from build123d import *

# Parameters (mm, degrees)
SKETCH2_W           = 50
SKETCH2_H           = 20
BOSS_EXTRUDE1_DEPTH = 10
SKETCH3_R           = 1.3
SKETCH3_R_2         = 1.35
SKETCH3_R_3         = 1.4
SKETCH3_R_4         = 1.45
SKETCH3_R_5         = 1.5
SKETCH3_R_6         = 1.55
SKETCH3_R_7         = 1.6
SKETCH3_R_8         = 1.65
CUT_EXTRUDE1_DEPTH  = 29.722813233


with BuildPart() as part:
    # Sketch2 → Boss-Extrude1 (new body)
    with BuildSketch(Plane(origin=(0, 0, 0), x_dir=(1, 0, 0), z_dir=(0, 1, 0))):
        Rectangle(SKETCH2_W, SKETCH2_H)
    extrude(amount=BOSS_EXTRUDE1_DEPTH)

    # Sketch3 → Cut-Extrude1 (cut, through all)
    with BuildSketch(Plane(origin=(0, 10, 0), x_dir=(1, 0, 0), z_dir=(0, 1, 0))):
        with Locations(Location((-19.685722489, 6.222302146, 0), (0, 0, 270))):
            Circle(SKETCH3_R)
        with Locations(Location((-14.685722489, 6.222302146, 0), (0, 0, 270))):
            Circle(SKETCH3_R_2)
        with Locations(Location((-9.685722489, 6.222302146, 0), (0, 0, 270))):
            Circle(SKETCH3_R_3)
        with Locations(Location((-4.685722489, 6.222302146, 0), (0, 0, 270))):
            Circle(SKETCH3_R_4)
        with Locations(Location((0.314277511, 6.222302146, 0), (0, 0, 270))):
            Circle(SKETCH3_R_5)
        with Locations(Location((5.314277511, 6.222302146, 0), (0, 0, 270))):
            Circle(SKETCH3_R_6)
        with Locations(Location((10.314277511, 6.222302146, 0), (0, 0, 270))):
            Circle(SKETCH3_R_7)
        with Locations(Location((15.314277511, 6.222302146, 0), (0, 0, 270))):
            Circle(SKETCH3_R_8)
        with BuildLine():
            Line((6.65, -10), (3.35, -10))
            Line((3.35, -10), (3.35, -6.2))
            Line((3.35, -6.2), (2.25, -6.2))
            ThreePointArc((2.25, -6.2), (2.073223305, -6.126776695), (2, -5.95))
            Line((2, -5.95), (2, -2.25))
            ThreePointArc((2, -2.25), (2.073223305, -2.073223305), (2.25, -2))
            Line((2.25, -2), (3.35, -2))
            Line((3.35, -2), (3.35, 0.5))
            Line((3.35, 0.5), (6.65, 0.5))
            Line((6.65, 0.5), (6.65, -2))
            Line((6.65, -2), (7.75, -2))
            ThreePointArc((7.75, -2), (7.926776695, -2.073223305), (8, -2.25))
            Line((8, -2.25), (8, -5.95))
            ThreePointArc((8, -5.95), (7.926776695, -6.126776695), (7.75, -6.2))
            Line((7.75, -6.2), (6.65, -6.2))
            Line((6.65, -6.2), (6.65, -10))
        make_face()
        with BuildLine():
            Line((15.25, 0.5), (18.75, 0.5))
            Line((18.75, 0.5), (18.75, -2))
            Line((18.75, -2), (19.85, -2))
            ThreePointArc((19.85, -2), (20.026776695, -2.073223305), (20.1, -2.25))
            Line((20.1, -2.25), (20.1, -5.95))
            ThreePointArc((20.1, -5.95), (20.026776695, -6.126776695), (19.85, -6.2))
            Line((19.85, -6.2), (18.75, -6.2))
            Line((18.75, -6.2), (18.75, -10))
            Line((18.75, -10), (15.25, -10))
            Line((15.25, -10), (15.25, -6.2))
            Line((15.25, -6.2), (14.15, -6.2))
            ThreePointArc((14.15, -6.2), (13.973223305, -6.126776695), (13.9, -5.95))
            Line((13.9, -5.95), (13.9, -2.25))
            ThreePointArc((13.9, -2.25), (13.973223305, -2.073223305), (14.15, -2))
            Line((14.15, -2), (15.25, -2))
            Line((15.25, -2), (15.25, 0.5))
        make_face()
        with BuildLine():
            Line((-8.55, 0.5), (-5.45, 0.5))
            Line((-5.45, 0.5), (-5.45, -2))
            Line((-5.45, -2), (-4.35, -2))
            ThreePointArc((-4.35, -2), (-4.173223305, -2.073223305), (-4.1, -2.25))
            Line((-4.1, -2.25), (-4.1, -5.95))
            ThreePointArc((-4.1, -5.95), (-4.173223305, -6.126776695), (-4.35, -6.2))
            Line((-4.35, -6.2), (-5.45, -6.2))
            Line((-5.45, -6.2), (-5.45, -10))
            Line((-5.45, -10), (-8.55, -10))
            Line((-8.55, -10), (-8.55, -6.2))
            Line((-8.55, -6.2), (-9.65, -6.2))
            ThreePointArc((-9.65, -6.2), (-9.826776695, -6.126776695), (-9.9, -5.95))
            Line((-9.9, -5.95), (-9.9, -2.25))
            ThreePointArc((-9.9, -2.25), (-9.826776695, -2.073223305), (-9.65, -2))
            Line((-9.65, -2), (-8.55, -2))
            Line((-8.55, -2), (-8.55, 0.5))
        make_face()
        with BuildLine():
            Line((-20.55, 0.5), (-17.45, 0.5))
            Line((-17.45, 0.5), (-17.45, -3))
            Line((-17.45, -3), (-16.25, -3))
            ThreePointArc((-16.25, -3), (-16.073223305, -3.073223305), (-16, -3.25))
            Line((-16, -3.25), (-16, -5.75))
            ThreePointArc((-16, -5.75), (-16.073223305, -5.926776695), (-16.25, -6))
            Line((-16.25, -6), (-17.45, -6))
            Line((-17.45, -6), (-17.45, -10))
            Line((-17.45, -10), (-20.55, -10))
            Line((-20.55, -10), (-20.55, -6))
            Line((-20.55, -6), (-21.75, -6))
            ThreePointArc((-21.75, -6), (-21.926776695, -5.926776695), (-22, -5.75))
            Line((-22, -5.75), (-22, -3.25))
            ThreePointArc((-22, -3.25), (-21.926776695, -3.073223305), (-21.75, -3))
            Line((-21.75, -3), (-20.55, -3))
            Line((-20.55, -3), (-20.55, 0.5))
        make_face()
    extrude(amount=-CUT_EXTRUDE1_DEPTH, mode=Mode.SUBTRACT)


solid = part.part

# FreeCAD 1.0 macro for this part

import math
import FreeCAD as App
import Part
import Sketcher
Q = App.Units.Quantity


def add_polygon(sketch, points):
    """Adds a closed chain of lines whose ends are joined by coincident constraints."""
    first, n = sketch.GeometryCount, len(points)
    for a, b in zip(points, points[1:] + points[:1]):
        sketch.addGeometry(Part.LineSegment(App.Vector(*a, 0), App.Vector(*b, 0)), False)
    for i in range(n):
        sketch.addConstraint(Sketcher.Constraint("Coincident", first + i, 2, first + (i + 1) % n, 1))

doc = App.newDocument("Part")
body = doc.addObject("PartDesign::Body", "Body")

# Sketch on XZ plane
sketch1 = body.newObject("Sketcher::SketchObject", "Sketch")
sketch1.AttachmentSupport = (doc.getObject("XZ_Plane"), [""])
sketch1.MapMode = "FlatFace"
add_polygon(sketch1, [(-25, -10), (-25, 10), (25, 10), (25, -10)])  # lines 0-3
sketch1.addConstraint(Sketcher.Constraint("Vertical", 0))
sketch1.addConstraint(Sketcher.Constraint("Horizontal", 1))
sketch1.addConstraint(Sketcher.Constraint("Vertical", 2))
sketch1.addConstraint(Sketcher.Constraint("Horizontal", 3))
sketch1.addConstraint(Sketcher.Constraint("Symmetric", 0, 2, 2, 2, -1, 1))
sketch1.addConstraint(Sketcher.Constraint("DistanceX", 1, 1, 1, 2, Q("50 mm")))
sketch1.addConstraint(Sketcher.Constraint("DistanceY", 0, 1, 0, 2, Q("20 mm")))
pad1 = body.newObject("PartDesign::Pad", "Pad")
pad1.Profile = sketch1
pad1.Length = 10
pad1.Reversed = True

# Sketch on XZ plane
sketch2 = body.newObject("Sketcher::SketchObject", "Sketch001")
sketch2.AttachmentSupport = (doc.getObject("XZ_Plane"), [""])
sketch2.MapMode = "FlatFace"
sketch2.AttachmentOffset = App.Placement(App.Vector(0, 0, -10), App.Rotation())
sketch2.addGeometry(Part.Circle(App.Vector(-19.69, -6.22, 0), App.Vector(0, 0, 1), 1.3), False)
sketch2.addGeometry(Part.Circle(App.Vector(-14.69, -6.22, 0), App.Vector(0, 0, 1), 1.35), False)
sketch2.addGeometry(Part.Circle(App.Vector(-9.69, -6.22, 0), App.Vector(0, 0, 1), 1.4), False)
sketch2.addGeometry(Part.Circle(App.Vector(-4.69, -6.22, 0), App.Vector(0, 0, 1), 1.45), False)
sketch2.addGeometry(Part.Circle(App.Vector(0.31, -6.22, 0), App.Vector(0, 0, 1), 1.5), False)
sketch2.addGeometry(Part.Circle(App.Vector(5.31, -6.22, 0), App.Vector(0, 0, 1), 1.55), False)
sketch2.addGeometry(Part.Circle(App.Vector(10.31, -6.22, 0), App.Vector(0, 0, 1), 1.6), False)
sketch2.addGeometry(Part.Circle(App.Vector(15.31, -6.22, 0), App.Vector(0, 0, 1), 1.65), False)
sketch2.addGeometry(Part.LineSegment(App.Vector(3.35, 10, 0), App.Vector(6.65, 10, 0)), False)
sketch2.addGeometry(Part.LineSegment(App.Vector(6.65, 10, 0), App.Vector(6.65, 6.2, 0)), False)
sketch2.addGeometry(Part.LineSegment(App.Vector(6.65, 6.2, 0), App.Vector(7.75, 6.2, 0)), False)
sketch2.addGeometry(Part.ArcOfCircle(Part.Circle(App.Vector(7.75, 5.95, 0), App.Vector(0, 0, 1), 0.25), math.radians(0), math.radians(90)), False)
sketch2.addGeometry(Part.LineSegment(App.Vector(8, 5.95, 0), App.Vector(8, 2.25, 0)), False)
sketch2.addGeometry(Part.ArcOfCircle(Part.Circle(App.Vector(7.75, 2.25, 0), App.Vector(0, 0, 1), 0.25), math.radians(-90), math.radians(0)), False)
sketch2.addGeometry(Part.LineSegment(App.Vector(7.75, 2, 0), App.Vector(6.65, 2, 0)), False)
sketch2.addGeometry(Part.LineSegment(App.Vector(6.65, 2, 0), App.Vector(6.65, -0.5, 0)), False)
sketch2.addGeometry(Part.LineSegment(App.Vector(6.65, -0.5, 0), App.Vector(3.35, -0.5, 0)), False)
sketch2.addGeometry(Part.LineSegment(App.Vector(3.35, -0.5, 0), App.Vector(3.35, 2, 0)), False)
sketch2.addGeometry(Part.LineSegment(App.Vector(3.35, 2, 0), App.Vector(2.25, 2, 0)), False)
sketch2.addGeometry(Part.ArcOfCircle(Part.Circle(App.Vector(2.25, 2.25, 0), App.Vector(0, 0, 1), 0.25), math.radians(-180), math.radians(-90)), False)
sketch2.addGeometry(Part.LineSegment(App.Vector(2, 2.25, 0), App.Vector(2, 5.95, 0)), False)
sketch2.addGeometry(Part.ArcOfCircle(Part.Circle(App.Vector(2.25, 5.95, 0), App.Vector(0, 0, 1), 0.25), math.radians(90), math.radians(180)), False)
sketch2.addGeometry(Part.LineSegment(App.Vector(2.25, 6.2, 0), App.Vector(3.35, 6.2, 0)), False)
sketch2.addGeometry(Part.LineSegment(App.Vector(3.35, 6.2, 0), App.Vector(3.35, 10, 0)), False)
sketch2.addGeometry(Part.LineSegment(App.Vector(18.75, -0.5, 0), App.Vector(15.25, -0.5, 0)), False)
sketch2.addGeometry(Part.LineSegment(App.Vector(15.25, -0.5, 0), App.Vector(15.25, 2, 0)), False)
sketch2.addGeometry(Part.LineSegment(App.Vector(15.25, 2, 0), App.Vector(14.15, 2, 0)), False)
sketch2.addGeometry(Part.ArcOfCircle(Part.Circle(App.Vector(14.15, 2.25, 0), App.Vector(0, 0, 1), 0.25), math.radians(-180), math.radians(-90)), False)
sketch2.addGeometry(Part.LineSegment(App.Vector(13.9, 2.25, 0), App.Vector(13.9, 5.95, 0)), False)
sketch2.addGeometry(Part.ArcOfCircle(Part.Circle(App.Vector(14.15, 5.95, 0), App.Vector(0, 0, 1), 0.25), math.radians(90), math.radians(180)), False)
sketch2.addGeometry(Part.LineSegment(App.Vector(14.15, 6.2, 0), App.Vector(15.25, 6.2, 0)), False)
sketch2.addGeometry(Part.LineSegment(App.Vector(15.25, 6.2, 0), App.Vector(15.25, 10, 0)), False)
sketch2.addGeometry(Part.LineSegment(App.Vector(15.25, 10, 0), App.Vector(18.75, 10, 0)), False)
sketch2.addGeometry(Part.LineSegment(App.Vector(18.75, 10, 0), App.Vector(18.75, 6.2, 0)), False)
sketch2.addGeometry(Part.LineSegment(App.Vector(18.75, 6.2, 0), App.Vector(19.85, 6.2, 0)), False)
sketch2.addGeometry(Part.ArcOfCircle(Part.Circle(App.Vector(19.85, 5.95, 0), App.Vector(0, 0, 1), 0.25), math.radians(0), math.radians(90)), False)
sketch2.addGeometry(Part.LineSegment(App.Vector(20.1, 5.95, 0), App.Vector(20.1, 2.25, 0)), False)
sketch2.addGeometry(Part.ArcOfCircle(Part.Circle(App.Vector(19.85, 2.25, 0), App.Vector(0, 0, 1), 0.25), math.radians(-90), math.radians(0)), False)
sketch2.addGeometry(Part.LineSegment(App.Vector(19.85, 2, 0), App.Vector(18.75, 2, 0)), False)
sketch2.addGeometry(Part.LineSegment(App.Vector(18.75, 2, 0), App.Vector(18.75, -0.5, 0)), False)
sketch2.addGeometry(Part.LineSegment(App.Vector(-5.45, -0.5, 0), App.Vector(-8.55, -0.5, 0)), False)
sketch2.addGeometry(Part.LineSegment(App.Vector(-8.55, -0.5, 0), App.Vector(-8.55, 2, 0)), False)
sketch2.addGeometry(Part.LineSegment(App.Vector(-8.55, 2, 0), App.Vector(-9.65, 2, 0)), False)
sketch2.addGeometry(Part.ArcOfCircle(Part.Circle(App.Vector(-9.65, 2.25, 0), App.Vector(0, 0, 1), 0.25), math.radians(-180), math.radians(-90)), False)
sketch2.addGeometry(Part.LineSegment(App.Vector(-9.9, 2.25, 0), App.Vector(-9.9, 5.95, 0)), False)
sketch2.addGeometry(Part.ArcOfCircle(Part.Circle(App.Vector(-9.65, 5.95, 0), App.Vector(0, 0, 1), 0.25), math.radians(90), math.radians(180)), False)
sketch2.addGeometry(Part.LineSegment(App.Vector(-9.65, 6.2, 0), App.Vector(-8.55, 6.2, 0)), False)
sketch2.addGeometry(Part.LineSegment(App.Vector(-8.55, 6.2, 0), App.Vector(-8.55, 10, 0)), False)
sketch2.addGeometry(Part.LineSegment(App.Vector(-8.55, 10, 0), App.Vector(-5.45, 10, 0)), False)
sketch2.addGeometry(Part.LineSegment(App.Vector(-5.45, 10, 0), App.Vector(-5.45, 6.2, 0)), False)
sketch2.addGeometry(Part.LineSegment(App.Vector(-5.45, 6.2, 0), App.Vector(-4.35, 6.2, 0)), False)
sketch2.addGeometry(Part.ArcOfCircle(Part.Circle(App.Vector(-4.35, 5.95, 0), App.Vector(0, 0, 1), 0.25), math.radians(0), math.radians(90)), False)
sketch2.addGeometry(Part.LineSegment(App.Vector(-4.1, 5.95, 0), App.Vector(-4.1, 2.25, 0)), False)
sketch2.addGeometry(Part.ArcOfCircle(Part.Circle(App.Vector(-4.35, 2.25, 0), App.Vector(0, 0, 1), 0.25), math.radians(-90), math.radians(0)), False)
sketch2.addGeometry(Part.LineSegment(App.Vector(-4.35, 2, 0), App.Vector(-5.45, 2, 0)), False)
sketch2.addGeometry(Part.LineSegment(App.Vector(-5.45, 2, 0), App.Vector(-5.45, -0.5, 0)), False)
sketch2.addGeometry(Part.LineSegment(App.Vector(-17.45, -0.5, 0), App.Vector(-20.55, -0.5, 0)), False)
sketch2.addGeometry(Part.LineSegment(App.Vector(-20.55, -0.5, 0), App.Vector(-20.55, 3, 0)), False)
sketch2.addGeometry(Part.LineSegment(App.Vector(-20.55, 3, 0), App.Vector(-21.75, 3, 0)), False)
sketch2.addGeometry(Part.ArcOfCircle(Part.Circle(App.Vector(-21.75, 3.25, 0), App.Vector(0, 0, 1), 0.25), math.radians(-180), math.radians(-90)), False)
sketch2.addGeometry(Part.LineSegment(App.Vector(-22, 3.25, 0), App.Vector(-22, 5.75, 0)), False)
sketch2.addGeometry(Part.ArcOfCircle(Part.Circle(App.Vector(-21.75, 5.75, 0), App.Vector(0, 0, 1), 0.25), math.radians(90), math.radians(180)), False)
sketch2.addGeometry(Part.LineSegment(App.Vector(-21.75, 6, 0), App.Vector(-20.55, 6, 0)), False)
sketch2.addGeometry(Part.LineSegment(App.Vector(-20.55, 6, 0), App.Vector(-20.55, 10, 0)), False)
sketch2.addGeometry(Part.LineSegment(App.Vector(-20.55, 10, 0), App.Vector(-17.45, 10, 0)), False)
sketch2.addGeometry(Part.LineSegment(App.Vector(-17.45, 10, 0), App.Vector(-17.45, 6, 0)), False)
sketch2.addGeometry(Part.LineSegment(App.Vector(-17.45, 6, 0), App.Vector(-16.25, 6, 0)), False)
sketch2.addGeometry(Part.ArcOfCircle(Part.Circle(App.Vector(-16.25, 5.75, 0), App.Vector(0, 0, 1), 0.25), math.radians(0), math.radians(90)), False)
sketch2.addGeometry(Part.LineSegment(App.Vector(-16, 5.75, 0), App.Vector(-16, 3.25, 0)), False)
sketch2.addGeometry(Part.ArcOfCircle(Part.Circle(App.Vector(-16.25, 3.25, 0), App.Vector(0, 0, 1), 0.25), math.radians(-90), math.radians(0)), False)
sketch2.addGeometry(Part.LineSegment(App.Vector(-16.25, 3, 0), App.Vector(-17.45, 3, 0)), False)
sketch2.addGeometry(Part.LineSegment(App.Vector(-17.45, 3, 0), App.Vector(-17.45, -0.5, 0)), False)
sketch2.addConstraint(Sketcher.Constraint("Coincident", 8, 2, 9, 1))
sketch2.addConstraint(Sketcher.Constraint("Coincident", 9, 2, 10, 1))
sketch2.addConstraint(Sketcher.Constraint("Tangent", 10, 2, 11, 2))
sketch2.addConstraint(Sketcher.Constraint("Tangent", 11, 1, 12, 1))
sketch2.addConstraint(Sketcher.Constraint("Tangent", 12, 2, 13, 2))
sketch2.addConstraint(Sketcher.Constraint("Tangent", 13, 1, 14, 1))
sketch2.addConstraint(Sketcher.Constraint("Coincident", 14, 2, 15, 1))
sketch2.addConstraint(Sketcher.Constraint("Coincident", 15, 2, 16, 1))
sketch2.addConstraint(Sketcher.Constraint("Coincident", 16, 2, 17, 1))
sketch2.addConstraint(Sketcher.Constraint("Coincident", 17, 2, 18, 1))
sketch2.addConstraint(Sketcher.Constraint("Tangent", 18, 2, 19, 2))
sketch2.addConstraint(Sketcher.Constraint("Tangent", 19, 1, 20, 1))
sketch2.addConstraint(Sketcher.Constraint("Tangent", 20, 2, 21, 2))
sketch2.addConstraint(Sketcher.Constraint("Tangent", 21, 1, 22, 1))
sketch2.addConstraint(Sketcher.Constraint("Coincident", 22, 2, 23, 1))
sketch2.addConstraint(Sketcher.Constraint("Coincident", 23, 2, 8, 1))
sketch2.addConstraint(Sketcher.Constraint("Coincident", 24, 2, 25, 1))
sketch2.addConstraint(Sketcher.Constraint("Coincident", 25, 2, 26, 1))
sketch2.addConstraint(Sketcher.Constraint("Tangent", 26, 2, 27, 2))
sketch2.addConstraint(Sketcher.Constraint("Tangent", 27, 1, 28, 1))
sketch2.addConstraint(Sketcher.Constraint("Tangent", 28, 2, 29, 2))
sketch2.addConstraint(Sketcher.Constraint("Tangent", 29, 1, 30, 1))
sketch2.addConstraint(Sketcher.Constraint("Coincident", 30, 2, 31, 1))
sketch2.addConstraint(Sketcher.Constraint("Coincident", 31, 2, 32, 1))
sketch2.addConstraint(Sketcher.Constraint("Coincident", 32, 2, 33, 1))
sketch2.addConstraint(Sketcher.Constraint("Coincident", 33, 2, 34, 1))
sketch2.addConstraint(Sketcher.Constraint("Tangent", 34, 2, 35, 2))
sketch2.addConstraint(Sketcher.Constraint("Tangent", 35, 1, 36, 1))
sketch2.addConstraint(Sketcher.Constraint("Tangent", 36, 2, 37, 2))
sketch2.addConstraint(Sketcher.Constraint("Tangent", 37, 1, 38, 1))
sketch2.addConstraint(Sketcher.Constraint("Coincident", 38, 2, 39, 1))
sketch2.addConstraint(Sketcher.Constraint("Coincident", 39, 2, 24, 1))
sketch2.addConstraint(Sketcher.Constraint("Coincident", 40, 2, 41, 1))
sketch2.addConstraint(Sketcher.Constraint("Coincident", 41, 2, 42, 1))
sketch2.addConstraint(Sketcher.Constraint("Tangent", 42, 2, 43, 2))
sketch2.addConstraint(Sketcher.Constraint("Tangent", 43, 1, 44, 1))
sketch2.addConstraint(Sketcher.Constraint("Tangent", 44, 2, 45, 2))
sketch2.addConstraint(Sketcher.Constraint("Tangent", 45, 1, 46, 1))
sketch2.addConstraint(Sketcher.Constraint("Coincident", 46, 2, 47, 1))
sketch2.addConstraint(Sketcher.Constraint("Coincident", 47, 2, 48, 1))
sketch2.addConstraint(Sketcher.Constraint("Coincident", 48, 2, 49, 1))
sketch2.addConstraint(Sketcher.Constraint("Coincident", 49, 2, 50, 1))
sketch2.addConstraint(Sketcher.Constraint("Tangent", 50, 2, 51, 2))
sketch2.addConstraint(Sketcher.Constraint("Tangent", 51, 1, 52, 1))
sketch2.addConstraint(Sketcher.Constraint("Tangent", 52, 2, 53, 2))
sketch2.addConstraint(Sketcher.Constraint("Tangent", 53, 1, 54, 1))
sketch2.addConstraint(Sketcher.Constraint("Coincident", 54, 2, 55, 1))
sketch2.addConstraint(Sketcher.Constraint("Coincident", 55, 2, 40, 1))
sketch2.addConstraint(Sketcher.Constraint("Coincident", 56, 2, 57, 1))
sketch2.addConstraint(Sketcher.Constraint("Coincident", 57, 2, 58, 1))
sketch2.addConstraint(Sketcher.Constraint("Tangent", 58, 2, 59, 2))
sketch2.addConstraint(Sketcher.Constraint("Tangent", 59, 1, 60, 1))
sketch2.addConstraint(Sketcher.Constraint("Tangent", 60, 2, 61, 2))
sketch2.addConstraint(Sketcher.Constraint("Tangent", 61, 1, 62, 1))
sketch2.addConstraint(Sketcher.Constraint("Coincident", 62, 2, 63, 1))
sketch2.addConstraint(Sketcher.Constraint("Coincident", 63, 2, 64, 1))
sketch2.addConstraint(Sketcher.Constraint("Coincident", 64, 2, 65, 1))
sketch2.addConstraint(Sketcher.Constraint("Coincident", 65, 2, 66, 1))
sketch2.addConstraint(Sketcher.Constraint("Tangent", 66, 2, 67, 2))
sketch2.addConstraint(Sketcher.Constraint("Tangent", 67, 1, 68, 1))
sketch2.addConstraint(Sketcher.Constraint("Tangent", 68, 2, 69, 2))
sketch2.addConstraint(Sketcher.Constraint("Tangent", 69, 1, 70, 1))
sketch2.addConstraint(Sketcher.Constraint("Coincident", 70, 2, 71, 1))
sketch2.addConstraint(Sketcher.Constraint("Coincident", 71, 2, 56, 1))
sketch2.addConstraint(Sketcher.Constraint("Horizontal", 8))
sketch2.addConstraint(Sketcher.Constraint("Vertical", 9))
sketch2.addConstraint(Sketcher.Constraint("Horizontal", 10))
sketch2.addConstraint(Sketcher.Constraint("Vertical", 12))
sketch2.addConstraint(Sketcher.Constraint("Horizontal", 14))
sketch2.addConstraint(Sketcher.Constraint("Vertical", 15))
sketch2.addConstraint(Sketcher.Constraint("Horizontal", 16))
sketch2.addConstraint(Sketcher.Constraint("Vertical", 17))
sketch2.addConstraint(Sketcher.Constraint("Horizontal", 18))
sketch2.addConstraint(Sketcher.Constraint("Vertical", 20))
sketch2.addConstraint(Sketcher.Constraint("Horizontal", 22))
sketch2.addConstraint(Sketcher.Constraint("Vertical", 23))
sketch2.addConstraint(Sketcher.Constraint("Horizontal", 24))
sketch2.addConstraint(Sketcher.Constraint("Vertical", 25))
sketch2.addConstraint(Sketcher.Constraint("Horizontal", 26))
sketch2.addConstraint(Sketcher.Constraint("Vertical", 28))
sketch2.addConstraint(Sketcher.Constraint("Horizontal", 30))
sketch2.addConstraint(Sketcher.Constraint("Vertical", 31))
sketch2.addConstraint(Sketcher.Constraint("Horizontal", 32))
sketch2.addConstraint(Sketcher.Constraint("Vertical", 33))
sketch2.addConstraint(Sketcher.Constraint("Horizontal", 34))
sketch2.addConstraint(Sketcher.Constraint("Vertical", 36))
sketch2.addConstraint(Sketcher.Constraint("Horizontal", 38))
sketch2.addConstraint(Sketcher.Constraint("Vertical", 39))
sketch2.addConstraint(Sketcher.Constraint("Horizontal", 40))
sketch2.addConstraint(Sketcher.Constraint("Vertical", 41))
sketch2.addConstraint(Sketcher.Constraint("Horizontal", 42))
sketch2.addConstraint(Sketcher.Constraint("Vertical", 44))
sketch2.addConstraint(Sketcher.Constraint("Horizontal", 46))
sketch2.addConstraint(Sketcher.Constraint("Vertical", 47))
sketch2.addConstraint(Sketcher.Constraint("Horizontal", 48))
sketch2.addConstraint(Sketcher.Constraint("Vertical", 49))
sketch2.addConstraint(Sketcher.Constraint("Horizontal", 50))
sketch2.addConstraint(Sketcher.Constraint("Vertical", 52))
sketch2.addConstraint(Sketcher.Constraint("Horizontal", 54))
sketch2.addConstraint(Sketcher.Constraint("Vertical", 55))
sketch2.addConstraint(Sketcher.Constraint("Horizontal", 56))
sketch2.addConstraint(Sketcher.Constraint("Vertical", 57))
sketch2.addConstraint(Sketcher.Constraint("Horizontal", 58))
sketch2.addConstraint(Sketcher.Constraint("Vertical", 60))
sketch2.addConstraint(Sketcher.Constraint("Horizontal", 62))
sketch2.addConstraint(Sketcher.Constraint("Vertical", 63))
sketch2.addConstraint(Sketcher.Constraint("Horizontal", 64))
sketch2.addConstraint(Sketcher.Constraint("Vertical", 65))
sketch2.addConstraint(Sketcher.Constraint("Horizontal", 66))
sketch2.addConstraint(Sketcher.Constraint("Vertical", 68))
sketch2.addConstraint(Sketcher.Constraint("Horizontal", 70))
sketch2.addConstraint(Sketcher.Constraint("Vertical", 71))
sketch2.addConstraint(Sketcher.Constraint("Equal", 11, 13))
sketch2.addConstraint(Sketcher.Constraint("Equal", 13, 19))
sketch2.addConstraint(Sketcher.Constraint("Equal", 19, 21))
sketch2.addConstraint(Sketcher.Constraint("Equal", 21, 27))
sketch2.addConstraint(Sketcher.Constraint("Equal", 27, 29))
sketch2.addConstraint(Sketcher.Constraint("Equal", 29, 35))
sketch2.addConstraint(Sketcher.Constraint("Equal", 35, 37))
sketch2.addConstraint(Sketcher.Constraint("Equal", 37, 43))
sketch2.addConstraint(Sketcher.Constraint("Equal", 43, 45))
sketch2.addConstraint(Sketcher.Constraint("Equal", 45, 51))
sketch2.addConstraint(Sketcher.Constraint("Equal", 51, 53))
sketch2.addConstraint(Sketcher.Constraint("Equal", 53, 59))
sketch2.addConstraint(Sketcher.Constraint("Equal", 59, 61))
sketch2.addConstraint(Sketcher.Constraint("Equal", 61, 67))
sketch2.addConstraint(Sketcher.Constraint("Equal", 67, 69))
sketch2.addConstraint(Sketcher.Constraint("Horizontal", 0, 3, 1, 3))
sketch2.addConstraint(Sketcher.Constraint("Horizontal", 1, 3, 2, 3))
sketch2.addConstraint(Sketcher.Constraint("Horizontal", 2, 3, 3, 3))
sketch2.addConstraint(Sketcher.Constraint("Horizontal", 3, 3, 4, 3))
sketch2.addConstraint(Sketcher.Constraint("Horizontal", 4, 3, 5, 3))
sketch2.addConstraint(Sketcher.Constraint("Horizontal", 5, 3, 6, 3))
sketch2.addConstraint(Sketcher.Constraint("Horizontal", 6, 3, 7, 3))
sketch2.addConstraint(Sketcher.Constraint("Horizontal", 13, 3, 19, 3))
sketch2.addConstraint(Sketcher.Constraint("Horizontal", 11, 3, 21, 3))
sketch2.addConstraint(Sketcher.Constraint("Horizontal", 19, 3, 27, 3))
sketch2.addConstraint(Sketcher.Constraint("Horizontal", 21, 3, 29, 3))
sketch2.addConstraint(Sketcher.Constraint("Horizontal", 29, 3, 35, 3))
sketch2.addConstraint(Sketcher.Constraint("Horizontal", 27, 3, 37, 3))
sketch2.addConstraint(Sketcher.Constraint("Horizontal", 37, 3, 43, 3))
sketch2.addConstraint(Sketcher.Constraint("Horizontal", 35, 3, 45, 3))
sketch2.addConstraint(Sketcher.Constraint("Horizontal", 45, 3, 51, 3))
sketch2.addConstraint(Sketcher.Constraint("Horizontal", 43, 3, 53, 3))
sketch2.addConstraint(Sketcher.Constraint("Horizontal", 61, 3, 67, 3))
sketch2.addConstraint(Sketcher.Constraint("Horizontal", 59, 3, 69, 3))
sketch2.addConstraint(Sketcher.Constraint("Horizontal", 16, 2, 24, 2))
sketch2.addConstraint(Sketcher.Constraint("Horizontal", 23, 2, 31, 2))
sketch2.addConstraint(Sketcher.Constraint("Horizontal", 39, 2, 40, 2))
sketch2.addConstraint(Sketcher.Constraint("Horizontal", 32, 2, 47, 2))
sketch2.addConstraint(Sketcher.Constraint("Horizontal", 55, 2, 56, 2))
sketch2.addConstraint(Sketcher.Constraint("Horizontal", 48, 2, 63, 2))
sketch2.addConstraint(Sketcher.Constraint("Vertical", 9, 2, 14, 2))
sketch2.addConstraint(Sketcher.Constraint("Vertical", 17, 2, 22, 2))
sketch2.addConstraint(Sketcher.Constraint("Vertical", 25, 2, 30, 2))
sketch2.addConstraint(Sketcher.Constraint("Vertical", 33, 2, 38, 2))
sketch2.addConstraint(Sketcher.Constraint("Vertical", 41, 2, 46, 2))
sketch2.addConstraint(Sketcher.Constraint("Vertical", 49, 2, 54, 2))
sketch2.addConstraint(Sketcher.Constraint("Vertical", 57, 2, 62, 2))
sketch2.addConstraint(Sketcher.Constraint("Vertical", 65, 2, 70, 2))
sketch2.addConstraint(Sketcher.Constraint("Equal", 14, 18))
sketch2.addConstraint(Sketcher.Constraint("Equal", 22, 26))
sketch2.addConstraint(Sketcher.Constraint("Equal", 30, 34))
sketch2.addConstraint(Sketcher.Constraint("Equal", 38, 42))
sketch2.addConstraint(Sketcher.Constraint("Equal", 46, 50))
sketch2.addConstraint(Sketcher.Constraint("Equal", 48, 56))
sketch2.addConstraint(Sketcher.Constraint("Equal", 62, 66))
sketch2.addConstraint(Sketcher.Constraint("Equal", 32, 57))
sketch2.addConstraint(Sketcher.Constraint("Equal", 55, 60))
sketch2.addConstraint(Sketcher.Constraint("Diameter", 4, Q("3 mm")))
sketch2.addConstraint(Sketcher.Constraint("Diameter", 0, Q("2.6 mm")))
sketch2.addConstraint(Sketcher.Constraint("Diameter", 1, Q("2.7 mm")))
sketch2.addConstraint(Sketcher.Constraint("Diameter", 2, Q("2.8 mm")))
sketch2.addConstraint(Sketcher.Constraint("Diameter", 3, Q("2.9 mm")))
sketch2.addConstraint(Sketcher.Constraint("Diameter", 5, Q("3.1 mm")))
sketch2.addConstraint(Sketcher.Constraint("Diameter", 6, Q("3.2 mm")))
sketch2.addConstraint(Sketcher.Constraint("Diameter", 7, Q("3.3 mm")))
sketch2.addConstraint(Sketcher.Constraint("DistanceY", 63, 1, 63, 2, Q("4 mm")))
sketch2.addConstraint(Sketcher.Constraint("Radius", 11, Q("0.25 mm")))
sketch2.addConstraint(Sketcher.Constraint("DistanceX", 8, 1, 8, 2, Q("3.3 mm")))
sketch2.addConstraint(Sketcher.Constraint("DistanceX", 10, 1, 10, 2, Q("1.1 mm")))
sketch2.addConstraint(Sketcher.Constraint("DistanceX", 24, 2, 24, 1, Q("3.5 mm")))
sketch2.addConstraint(Sketcher.Constraint("DistanceX", 40, 2, 40, 1, Q("3.1 mm")))
sketch2.addConstraint(Sketcher.Constraint("DistanceX", 58, 2, 58, 1, Q("1.2 mm")))
sketch2.addConstraint(Sketcher.Constraint("DistanceY", 9, 2, 9, 1, Q("3.8 mm")))
sketch2.addConstraint(Sketcher.Constraint("DistanceY", 15, 2, 15, 1, Q("2.5 mm")))
sketch2.addConstraint(Sketcher.Constraint("DistanceY", -1, 1, 8, 2, Q("10 mm")))
sketch2.addConstraint(Sketcher.Constraint("DistanceX", -1, 1, 11, 1, Q("8 mm")))
sketch2.addConstraint(Sketcher.Constraint("DistanceX", 59, 1, -1, 1, Q("22 mm")))
sketch2.addConstraint(Sketcher.Constraint("DistanceX", -1, 1, 27, 1, Q("13.9 mm")))
sketch2.addConstraint(Sketcher.Constraint("DistanceX", 43, 1, -1, 1, Q("9.9 mm")))
sketch2.addConstraint(Sketcher.Constraint("DistanceX", 0, 3, -1, 1, Q("19.685722 mm")))
sketch2.addConstraint(Sketcher.Constraint("DistanceY", 0, 3, -1, 1, Q("6.222302 mm")))
sketch2.addConstraint(Sketcher.Constraint("DistanceX", 1, 3, -1, 1, Q("14.685722 mm")))
sketch2.addConstraint(Sketcher.Constraint("DistanceX", 2, 3, -1, 1, Q("9.685722 mm")))
sketch2.addConstraint(Sketcher.Constraint("DistanceX", 3, 3, -1, 1, Q("4.685722 mm")))
sketch2.addConstraint(Sketcher.Constraint("DistanceX", -1, 1, 4, 3, Q("0.314278 mm")))
sketch2.addConstraint(Sketcher.Constraint("DistanceX", -1, 1, 5, 3, Q("5.314278 mm")))
sketch2.addConstraint(Sketcher.Constraint("DistanceX", -1, 1, 6, 3, Q("10.314278 mm")))
sketch2.addConstraint(Sketcher.Constraint("DistanceX", -1, 1, 7, 3, Q("15.314278 mm")))
pocket1 = body.newObject("PartDesign::Pocket", "Pocket")
pocket1.Profile = sketch2
pocket1.Type = "ThroughAll"
pocket1.Reversed = True

doc.recompute()
